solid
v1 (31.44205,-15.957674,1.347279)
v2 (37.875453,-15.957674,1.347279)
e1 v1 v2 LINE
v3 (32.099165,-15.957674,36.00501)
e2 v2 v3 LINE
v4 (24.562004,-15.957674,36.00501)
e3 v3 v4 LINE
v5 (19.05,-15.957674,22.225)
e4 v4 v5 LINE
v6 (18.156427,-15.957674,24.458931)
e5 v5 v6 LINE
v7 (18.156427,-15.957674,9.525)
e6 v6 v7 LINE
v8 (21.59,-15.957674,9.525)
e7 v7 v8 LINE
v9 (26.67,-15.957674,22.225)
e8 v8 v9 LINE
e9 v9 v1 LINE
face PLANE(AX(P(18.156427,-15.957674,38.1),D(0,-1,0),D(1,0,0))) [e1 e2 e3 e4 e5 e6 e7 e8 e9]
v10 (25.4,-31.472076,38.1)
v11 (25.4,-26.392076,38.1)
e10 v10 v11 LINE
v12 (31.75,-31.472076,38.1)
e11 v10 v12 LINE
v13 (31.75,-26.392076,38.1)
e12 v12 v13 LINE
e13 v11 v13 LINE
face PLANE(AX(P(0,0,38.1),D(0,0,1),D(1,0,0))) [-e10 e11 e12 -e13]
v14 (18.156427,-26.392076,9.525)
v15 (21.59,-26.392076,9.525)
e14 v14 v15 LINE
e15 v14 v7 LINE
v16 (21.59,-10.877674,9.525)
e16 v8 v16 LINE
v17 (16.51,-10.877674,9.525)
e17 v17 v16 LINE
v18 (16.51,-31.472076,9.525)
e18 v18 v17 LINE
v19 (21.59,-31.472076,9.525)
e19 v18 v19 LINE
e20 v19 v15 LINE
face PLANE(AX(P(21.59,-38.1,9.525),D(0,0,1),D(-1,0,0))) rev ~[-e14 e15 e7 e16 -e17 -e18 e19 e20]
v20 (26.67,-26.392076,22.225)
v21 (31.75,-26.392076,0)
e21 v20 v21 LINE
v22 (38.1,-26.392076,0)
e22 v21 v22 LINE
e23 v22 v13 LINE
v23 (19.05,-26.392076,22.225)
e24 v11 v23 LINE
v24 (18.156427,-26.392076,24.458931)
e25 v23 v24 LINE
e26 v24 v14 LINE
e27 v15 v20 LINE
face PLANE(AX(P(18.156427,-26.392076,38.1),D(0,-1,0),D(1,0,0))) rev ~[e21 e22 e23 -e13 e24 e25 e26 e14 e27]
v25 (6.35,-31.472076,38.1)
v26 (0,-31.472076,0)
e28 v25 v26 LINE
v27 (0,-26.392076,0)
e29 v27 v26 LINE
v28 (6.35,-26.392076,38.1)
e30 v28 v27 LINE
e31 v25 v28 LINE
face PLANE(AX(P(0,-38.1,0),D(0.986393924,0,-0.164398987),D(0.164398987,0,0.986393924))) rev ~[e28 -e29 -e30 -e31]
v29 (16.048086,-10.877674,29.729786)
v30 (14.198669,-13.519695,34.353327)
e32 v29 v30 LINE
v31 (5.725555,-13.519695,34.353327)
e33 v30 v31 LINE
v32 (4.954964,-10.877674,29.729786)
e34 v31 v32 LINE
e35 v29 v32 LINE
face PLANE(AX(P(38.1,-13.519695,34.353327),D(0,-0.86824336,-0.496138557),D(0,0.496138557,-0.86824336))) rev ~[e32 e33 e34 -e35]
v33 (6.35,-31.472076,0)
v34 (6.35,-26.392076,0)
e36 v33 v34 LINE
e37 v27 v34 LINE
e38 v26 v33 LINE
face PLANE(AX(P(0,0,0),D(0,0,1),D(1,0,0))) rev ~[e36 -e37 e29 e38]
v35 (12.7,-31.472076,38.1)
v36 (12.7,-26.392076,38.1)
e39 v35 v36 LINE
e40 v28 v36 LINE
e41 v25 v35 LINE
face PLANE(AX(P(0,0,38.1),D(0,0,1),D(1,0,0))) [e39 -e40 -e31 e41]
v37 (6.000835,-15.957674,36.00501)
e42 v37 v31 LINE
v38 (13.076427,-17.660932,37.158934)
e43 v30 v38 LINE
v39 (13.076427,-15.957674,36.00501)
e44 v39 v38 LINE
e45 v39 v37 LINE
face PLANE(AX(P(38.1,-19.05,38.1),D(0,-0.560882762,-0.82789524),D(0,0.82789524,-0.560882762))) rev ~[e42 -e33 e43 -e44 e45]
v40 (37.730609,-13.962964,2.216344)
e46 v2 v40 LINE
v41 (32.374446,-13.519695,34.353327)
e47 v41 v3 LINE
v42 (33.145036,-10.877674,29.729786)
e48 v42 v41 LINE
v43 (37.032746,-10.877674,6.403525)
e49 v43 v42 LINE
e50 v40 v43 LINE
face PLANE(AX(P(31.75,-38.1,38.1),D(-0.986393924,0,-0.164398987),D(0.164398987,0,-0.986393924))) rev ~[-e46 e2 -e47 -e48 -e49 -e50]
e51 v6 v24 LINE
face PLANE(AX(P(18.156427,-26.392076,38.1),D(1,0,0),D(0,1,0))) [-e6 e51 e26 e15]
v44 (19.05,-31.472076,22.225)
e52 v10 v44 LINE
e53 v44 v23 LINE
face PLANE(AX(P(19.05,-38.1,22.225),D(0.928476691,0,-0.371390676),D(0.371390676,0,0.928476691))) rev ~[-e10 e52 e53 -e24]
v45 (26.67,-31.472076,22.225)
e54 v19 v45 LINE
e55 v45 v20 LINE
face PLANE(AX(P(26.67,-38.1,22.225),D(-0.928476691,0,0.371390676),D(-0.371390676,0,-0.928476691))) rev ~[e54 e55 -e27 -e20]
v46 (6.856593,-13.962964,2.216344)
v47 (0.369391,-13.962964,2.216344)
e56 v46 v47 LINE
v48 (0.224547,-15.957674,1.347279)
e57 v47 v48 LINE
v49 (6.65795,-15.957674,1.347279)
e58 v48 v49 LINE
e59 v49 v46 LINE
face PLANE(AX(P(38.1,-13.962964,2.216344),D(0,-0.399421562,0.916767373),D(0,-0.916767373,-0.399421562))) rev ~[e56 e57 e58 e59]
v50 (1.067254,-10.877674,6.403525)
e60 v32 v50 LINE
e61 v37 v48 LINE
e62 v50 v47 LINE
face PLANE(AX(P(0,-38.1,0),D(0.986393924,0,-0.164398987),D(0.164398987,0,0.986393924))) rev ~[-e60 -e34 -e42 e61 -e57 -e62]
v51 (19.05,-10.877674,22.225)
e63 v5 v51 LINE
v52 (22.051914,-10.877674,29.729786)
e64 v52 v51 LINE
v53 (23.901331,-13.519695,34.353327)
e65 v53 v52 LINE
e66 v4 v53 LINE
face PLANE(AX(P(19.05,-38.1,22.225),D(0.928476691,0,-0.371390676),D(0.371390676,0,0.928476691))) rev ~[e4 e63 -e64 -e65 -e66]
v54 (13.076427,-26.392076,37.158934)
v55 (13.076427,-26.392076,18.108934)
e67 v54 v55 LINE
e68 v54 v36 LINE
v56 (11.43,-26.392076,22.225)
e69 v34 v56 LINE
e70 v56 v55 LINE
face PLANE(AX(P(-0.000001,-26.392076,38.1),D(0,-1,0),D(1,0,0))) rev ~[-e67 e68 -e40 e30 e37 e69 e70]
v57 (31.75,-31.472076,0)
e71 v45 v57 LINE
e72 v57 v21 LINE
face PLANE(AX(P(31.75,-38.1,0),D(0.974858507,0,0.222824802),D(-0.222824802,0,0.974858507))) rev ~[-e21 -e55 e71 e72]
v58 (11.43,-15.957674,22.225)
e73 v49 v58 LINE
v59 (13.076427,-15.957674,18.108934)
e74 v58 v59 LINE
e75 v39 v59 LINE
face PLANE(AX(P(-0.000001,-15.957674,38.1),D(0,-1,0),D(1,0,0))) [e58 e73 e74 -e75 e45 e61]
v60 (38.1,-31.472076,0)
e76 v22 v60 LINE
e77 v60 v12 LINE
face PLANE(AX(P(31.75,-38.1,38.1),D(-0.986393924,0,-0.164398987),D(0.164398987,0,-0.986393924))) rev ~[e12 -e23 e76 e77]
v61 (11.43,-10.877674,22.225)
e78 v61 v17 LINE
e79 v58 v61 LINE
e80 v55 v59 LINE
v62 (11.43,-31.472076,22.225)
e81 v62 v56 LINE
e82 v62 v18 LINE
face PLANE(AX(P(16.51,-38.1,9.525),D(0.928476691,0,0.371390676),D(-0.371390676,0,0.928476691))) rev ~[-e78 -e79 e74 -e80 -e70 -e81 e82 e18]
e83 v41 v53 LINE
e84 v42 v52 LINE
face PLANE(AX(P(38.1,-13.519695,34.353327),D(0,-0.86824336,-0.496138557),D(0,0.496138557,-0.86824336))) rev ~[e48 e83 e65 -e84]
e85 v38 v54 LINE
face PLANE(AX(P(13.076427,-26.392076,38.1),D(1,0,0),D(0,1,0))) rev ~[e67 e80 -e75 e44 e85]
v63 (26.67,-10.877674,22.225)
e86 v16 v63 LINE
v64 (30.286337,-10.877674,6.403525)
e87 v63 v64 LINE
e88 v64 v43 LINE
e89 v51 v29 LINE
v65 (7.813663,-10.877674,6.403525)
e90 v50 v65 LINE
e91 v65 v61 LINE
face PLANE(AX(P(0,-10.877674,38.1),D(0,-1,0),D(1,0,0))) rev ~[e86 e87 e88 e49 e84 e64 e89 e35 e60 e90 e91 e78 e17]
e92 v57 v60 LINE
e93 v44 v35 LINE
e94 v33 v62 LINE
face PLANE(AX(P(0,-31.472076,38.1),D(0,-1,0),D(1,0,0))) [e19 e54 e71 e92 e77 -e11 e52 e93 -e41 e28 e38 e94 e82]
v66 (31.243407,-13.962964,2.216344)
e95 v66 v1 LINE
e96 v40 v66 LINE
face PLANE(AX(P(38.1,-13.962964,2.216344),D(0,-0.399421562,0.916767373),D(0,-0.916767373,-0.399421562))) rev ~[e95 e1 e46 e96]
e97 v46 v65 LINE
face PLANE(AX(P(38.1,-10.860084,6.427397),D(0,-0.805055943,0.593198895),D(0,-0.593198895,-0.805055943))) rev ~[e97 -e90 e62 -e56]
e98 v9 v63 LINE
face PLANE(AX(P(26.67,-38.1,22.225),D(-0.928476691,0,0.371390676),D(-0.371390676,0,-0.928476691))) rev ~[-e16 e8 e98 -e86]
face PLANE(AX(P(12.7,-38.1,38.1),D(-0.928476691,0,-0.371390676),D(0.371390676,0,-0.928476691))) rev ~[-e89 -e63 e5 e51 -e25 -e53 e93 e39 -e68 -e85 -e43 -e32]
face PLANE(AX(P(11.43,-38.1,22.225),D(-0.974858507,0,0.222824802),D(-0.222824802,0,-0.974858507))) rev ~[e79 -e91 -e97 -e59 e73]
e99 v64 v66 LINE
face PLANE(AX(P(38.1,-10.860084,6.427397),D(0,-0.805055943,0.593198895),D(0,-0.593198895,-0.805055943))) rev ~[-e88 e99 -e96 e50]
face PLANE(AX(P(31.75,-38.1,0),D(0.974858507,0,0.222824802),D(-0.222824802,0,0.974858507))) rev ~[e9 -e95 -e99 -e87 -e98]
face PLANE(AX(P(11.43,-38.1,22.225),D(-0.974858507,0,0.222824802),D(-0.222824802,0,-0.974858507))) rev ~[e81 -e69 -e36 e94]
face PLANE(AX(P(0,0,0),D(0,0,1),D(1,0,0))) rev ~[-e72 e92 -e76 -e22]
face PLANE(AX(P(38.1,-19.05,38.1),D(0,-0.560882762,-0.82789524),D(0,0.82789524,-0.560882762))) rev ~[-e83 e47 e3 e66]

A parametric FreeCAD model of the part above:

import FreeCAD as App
import Part
import Sketcher
from FreeCAD import Vector
Q = App.Units.Quantity

doc = App.newDocument("Part")
body = doc.addObject("PartDesign::Body", "Body")

# Sketch on XZ plane
sketch1 = doc.addObject("Sketcher::SketchObject", "Sketch")
body.addObject(sketch1)
sketch1.AttachmentSupport = (doc.XZ_Plane, [""])
sketch1.MapMode = "FlatFace"
sketch1.addGeometry(Part.LineSegment(Vector(0, 38.1, 0), Vector(0, 0, 0)), False)
sketch1.addGeometry(Part.LineSegment(Vector(0, 0, 0), Vector(38.1, 0, 0)), False)
sketch1.addGeometry(Part.LineSegment(Vector(38.1, 0, 0), Vector(38.1, 38.1, 0)), False)
sketch1.addGeometry(Part.LineSegment(Vector(38.1, 38.1, 0), Vector(0, 38.1, 0)), False)
sketch1.addConstraint(Sketcher.Constraint("Coincident", 0, 2, 1, 1))
sketch1.addConstraint(Sketcher.Constraint("Coincident", 1, 2, 2, 1))
sketch1.addConstraint(Sketcher.Constraint("Coincident", 2, 2, 3, 1))
sketch1.addConstraint(Sketcher.Constraint("Coincident", 3, 2, 0, 1))
sketch1.addConstraint(Sketcher.Constraint("Vertical", 0))
sketch1.addConstraint(Sketcher.Constraint("Horizontal", 1))
sketch1.addConstraint(Sketcher.Constraint("Vertical", 2))
sketch1.addConstraint(Sketcher.Constraint("Horizontal", 3))
sketch1.addConstraint(Sketcher.Constraint("Coincident", 0, 2, -1, 1))
sketch1.addConstraint(Sketcher.Constraint("Equal", 3, 0))
sketch1.addConstraint(Sketcher.Constraint("DistanceX", 1, 1, 1, 2, Q("1.5 in")))
pad1 = doc.addObject("PartDesign::Pad", "Pad")
body.addObject(pad1)
pad1.Profile = sketch1
pad1.Length = Q("1.5 in")

# Sketch on XZ plane
sketch2 = doc.addObject("Sketcher::SketchObject", "Sketch001")
body.addObject(sketch2)
sketch2.AttachmentSupport = (doc.XZ_Plane, [""])
sketch2.MapMode = "FlatFace"
sketch2.AttachmentOffset = App.Placement(Vector(0, 0, 1.5 * 25.4), App.Rotation())
sketch2.addGeometry(Part.LineSegment(Vector(0, 38.1, 0), Vector(0, 0, 0)), False)
sketch2.addGeometry(Part.LineSegment(Vector(0, 0, 0), Vector(6.35, 38.1, 0)), False)
sketch2.addGeometry(Part.LineSegment(Vector(6.35, 38.1, 0), Vector(0, 38.1, 0)), False)
sketch2.addGeometry(Part.LineSegment(Vector(25.4, 38.1, 0), Vector(12.7, 38.1, 0)), False)
sketch2.addGeometry(Part.LineSegment(Vector(12.7, 38.1, 0), Vector(19.05, 22.225, 0)), False)
sketch2.addGeometry(Part.LineSegment(Vector(19.05, 22.225, 0), Vector(25.4, 38.1, 0)), False)
sketch2.addGeometry(Part.LineSegment(Vector(31.75, 38.1, 0), Vector(38.1, 0, 0)), False)
sketch2.addGeometry(Part.LineSegment(Vector(38.1, 0, 0), Vector(38.1, 38.1, 0)), False)
sketch2.addGeometry(Part.LineSegment(Vector(38.1, 38.1, 0), Vector(31.75, 38.1, 0)), False)
sketch2.addGeometry(Part.LineSegment(Vector(11.43, 22.225, 0), Vector(6.35, 0, 0)), False)
sketch2.addGeometry(Part.LineSegment(Vector(6.35, 0, 0), Vector(31.75, 0, 0)), False)
sketch2.addGeometry(Part.LineSegment(Vector(31.75, 0, 0), Vector(26.67, 22.225, 0)), False)
sketch2.addGeometry(Part.LineSegment(Vector(26.67, 22.225, 0), Vector(21.59, 9.525, 0)), False)
sketch2.addGeometry(Part.LineSegment(Vector(21.59, 9.525, 0), Vector(16.51, 9.525, 0)), False)
sketch2.addGeometry(Part.LineSegment(Vector(16.51, 9.525, 0), Vector(11.43, 22.225, 0)), False)
sketch2.addConstraint(Sketcher.Constraint("Coincident", 0, 2, 1, 1))
sketch2.addConstraint(Sketcher.Constraint("Coincident", 1, 2, 2, 1))
sketch2.addConstraint(Sketcher.Constraint("Coincident", 2, 2, 0, 1))
sketch2.addConstraint(Sketcher.Constraint("Coincident", 3, 2, 4, 1))
sketch2.addConstraint(Sketcher.Constraint("Coincident", 4, 2, 5, 1))
sketch2.addConstraint(Sketcher.Constraint("Coincident", 5, 2, 3, 1))
sketch2.addConstraint(Sketcher.Constraint("Coincident", 6, 2, 7, 1))
sketch2.addConstraint(Sketcher.Constraint("Coincident", 7, 2, 8, 1))
sketch2.addConstraint(Sketcher.Constraint("Coincident", 8, 2, 6, 1))
sketch2.addConstraint(Sketcher.Constraint("Coincident", 9, 2, 10, 1))
sketch2.addConstraint(Sketcher.Constraint("Coincident", 10, 2, 11, 1))
sketch2.addConstraint(Sketcher.Constraint("Coincident", 11, 2, 12, 1))
sketch2.addConstraint(Sketcher.Constraint("Coincident", 12, 2, 13, 1))
sketch2.addConstraint(Sketcher.Constraint("Coincident", 13, 2, 14, 1))
sketch2.addConstraint(Sketcher.Constraint("Coincident", 14, 2, 9, 1))
sketch2.addConstraint(Sketcher.Constraint("Vertical", 0))
sketch2.addConstraint(Sketcher.Constraint("Horizontal", 2))
sketch2.addConstraint(Sketcher.Constraint("Horizontal", 3))
sketch2.addConstraint(Sketcher.Constraint("Vertical", 7))
sketch2.addConstraint(Sketcher.Constraint("Horizontal", 8))
sketch2.addConstraint(Sketcher.Constraint("Horizontal", 10))
sketch2.addConstraint(Sketcher.Constraint("Horizontal", 13))
sketch2.addConstraint(Sketcher.Constraint("Coincident", 0, 2, -1, 1))
sketch2.addConstraint(Sketcher.Constraint("PointOnObject", 6, 2, -1))
sketch2.addConstraint(Sketcher.Constraint("PointOnObject", 9, 2, -1))
sketch2.addConstraint(Sketcher.Constraint("Parallel", 5, 12))
sketch2.addConstraint(Sketcher.Constraint("Parallel", 4, 14))
sketch2.addConstraint(Sketcher.Constraint("Horizontal", 2, 2, 3, 2))
sketch2.addConstraint(Sketcher.Constraint("Horizontal", 5, 2, 7, 2))
sketch2.addConstraint(Sketcher.Constraint("Horizontal", 4, 2, 11, 2))
sketch2.addConstraint(Sketcher.Constraint("Horizontal", 11, 2, 14, 2))
sketch2.addConstraint(Sketcher.Constraint("Vertical", 1, 2, 9, 2))
sketch2.addConstraint(Sketcher.Constraint("Vertical", 8, 2, 10, 2))
sketch2.addConstraint(Sketcher.Constraint("Equal", 2, 8))
sketch2.addConstraint(Sketcher.Constraint("Equal", 4, 5))
sketch2.addConstraint(Sketcher.Constraint("Equal", 9, 11))
sketch2.addConstraint(Sketcher.Constraint("DistanceX", 10, 1, 10, 2, Q("1 in")))
sketch2.addConstraint(Sketcher.Constraint("DistanceX", 3, 2, 3, 1, Q("0.5 in")))
sketch2.addConstraint(Sketcher.Constraint("DistanceX", 13, 2, 13, 1, Q("0.2 in")))
sketch2.addConstraint(Sketcher.Constraint("DistanceY", 0, 2, 0, 1, Q("1.5 in")))
sketch2.addConstraint(Sketcher.Constraint("DistanceX", -1, 1, 5, 2, Q("1 in")))
sketch2.addConstraint(Sketcher.Constraint("DistanceX", 3, 2, 6, 2, Q("1 in")))
sketch2.addConstraint(Sketcher.Constraint("DistanceX", 4, 2, 11, 2, Q("0.3 in")))
sketch2.addConstraint(Sketcher.Constraint("DistanceY", 12, 2, 4, 2, Q("0.5 in")))
pocket1 = doc.addObject("PartDesign::Pocket", "Pocket")
body.addObject(pocket1)
pocket1.Profile = sketch2
pocket1.Length = Q("1.5 in")

# Sketch on YZ plane
sketch3 = doc.addObject("Sketcher::SketchObject", "Sketch002")
body.addObject(sketch3)
sketch3.AttachmentSupport = (doc.YZ_Plane, [""])
sketch3.MapMode = "FlatFace"
sketch3.AttachmentOffset = App.Placement(Vector(0, 0, 1.5 * 25.4), App.Rotation())
sketch3.addGeometry(Part.LineSegment(Vector(-38.1, 38.1, 0), Vector(-38.1, 0, 0)), False)
sketch3.addGeometry(Part.LineSegment(Vector(-38.1, 0, 0), Vector(-33.245154, 0, 0)), False)
sketch3.addGeometry(Part.LineSegment(Vector(-33.245154, 0, 0), Vector(-33.245154, 38.1, 0)), False)
sketch3.addGeometry(Part.LineSegment(Vector(-33.245154, 38.1, 0), Vector(-38.1, 38.1, 0)), False)
sketch3.addGeometry(Part.LineSegment(Vector(-19.05, 0, 0), Vector(0, 0, 0)), False)
sketch3.addGeometry(Part.LineSegment(Vector(0, 0, 0), Vector(0, 38.1, 0)), False)
sketch3.addGeometry(Part.LineSegment(Vector(0, 38.1, 0), Vector(-19.05, 38.1, 0)), False)
sketch3.addGeometry(Part.LineSegment(Vector(-19.05, 38.1, 0), Vector(-13.519695, 34.353327, 0)), False)
sketch3.addGeometry(Part.LineSegment(Vector(-13.519695, 34.353327, 0), Vector(-10.860084, 29.699003, 0)), False)
sketch3.addGeometry(Part.LineSegment(Vector(-10.860084, 29.699003, 0), Vector(-10.860084, 6.427397, 0)), False)
sketch3.addGeometry(Part.LineSegment(Vector(-10.860084, 6.427397, 0), Vector(-13.962964, 2.216344, 0)), False)
sketch3.addGeometry(Part.LineSegment(Vector(-13.962964, 2.216344, 0), Vector(-19.05, 0, 0)), False)
sketch3.addConstraint(Sketcher.Constraint("Coincident", 0, 2, 1, 1))
sketch3.addConstraint(Sketcher.Constraint("Coincident", 1, 2, 2, 1))
sketch3.addConstraint(Sketcher.Constraint("Coincident", 2, 2, 3, 1))
sketch3.addConstraint(Sketcher.Constraint("Coincident", 3, 2, 0, 1))
sketch3.addConstraint(Sketcher.Constraint("Coincident", 4, 2, 5, 1))
sketch3.addConstraint(Sketcher.Constraint("Coincident", 5, 2, 6, 1))
sketch3.addConstraint(Sketcher.Constraint("Coincident", 6, 2, 7, 1))
sketch3.addConstraint(Sketcher.Constraint("Coincident", 7, 2, 8, 1))
sketch3.addConstraint(Sketcher.Constraint("Coincident", 8, 2, 9, 1))
sketch3.addConstraint(Sketcher.Constraint("Coincident", 9, 2, 10, 1))
sketch3.addConstraint(Sketcher.Constraint("Coincident", 10, 2, 11, 1))
sketch3.addConstraint(Sketcher.Constraint("Coincident", 11, 2, 4, 1))
sketch3.addConstraint(Sketcher.Constraint("Vertical", 0))
sketch3.addConstraint(Sketcher.Constraint("Horizontal", 1))
sketch3.addConstraint(Sketcher.Constraint("Vertical", 2))
sketch3.addConstraint(Sketcher.Constraint("Horizontal", 3))
sketch3.addConstraint(Sketcher.Constraint("Horizontal", 4))
sketch3.addConstraint(Sketcher.Constraint("Vertical", 5))
sketch3.addConstraint(Sketcher.Constraint("Horizontal", 6))
sketch3.addConstraint(Sketcher.Constraint("Vertical", 9))
sketch3.addConstraint(Sketcher.Constraint("Coincident", 4, 2, -1, 1))
sketch3.addConstraint(Sketcher.Constraint("PointOnObject", 0, 2, -1))
sketch3.addConstraint(Sketcher.Constraint("Horizontal", 3, 2, 5, 2))
sketch3.addConstraint(Sketcher.Constraint("Vertical", 6, 2, 11, 2))
sketch3.addConstraint(Sketcher.Constraint("DistanceY", 0, 2, 0, 1, Q("1.5 in")))
sketch3.addConstraint(Sketcher.Constraint("DistanceX", 4, 1, 4, 2, Q("0.75 in")))
sketch3.addConstraint(Sketcher.Constraint("DistanceX", 0, 2, -1, 1, Q("1.5 in")))
sketch3.addConstraint(Sketcher.Constraint("Distance", 8, Q("5.360621 mm")))
sketch3.addConstraint(Sketcher.Constraint("Distance", 10, Q("5.230758 mm")))
sketch3.addConstraint(Sketcher.Constraint("DistanceX", 1, 1, 1, 2, Q("4.854846 mm")))
sketch3.addConstraint(Sketcher.Constraint("DistanceY", 9, 2, 9, 1, Q("23.271606 mm")))
sketch3.addConstraint(Sketcher.Constraint("DistanceX", 2, 2, 7, 2, Q("19.725459 mm")))
sketch3.addConstraint(Sketcher.Constraint("DistanceX", 7, 2, 8, 2, Q("2.659611 mm")))
sketch3.addConstraint(Sketcher.Constraint("DistanceX", 10, 2, 9, 2, Q("3.10288 mm")))
sketch3.addConstraint(Sketcher.Constraint("Distance", 7, Q("6.679957 mm")))
pocket2 = doc.addObject("PartDesign::Pocket", "Pocket001")
body.addObject(pocket2)
pocket2.Profile = sketch3
pocket2.Length = Q("1.5 in")

# Sketch on XY plane
sketch4 = doc.addObject("Sketcher::SketchObject", "Sketch003")
body.addObject(sketch4)
sketch4.AttachmentSupport = (doc.XY_Plane, [""])
sketch4.MapMode = "FlatFace"
sketch4.AttachmentOffset = App.Placement(Vector(0, 0, 1.5 * 25.4), App.Rotation())
sketch4.addGeometry(Part.LineSegment(Vector(18.156427, -15.957674, 0), Vector(18.156427, -26.392076, 0)), False)
sketch4.addGeometry(Part.LineSegment(Vector(18.156427, -26.392076, 0), Vector(38.100001, -26.392076, 0)), False)
sketch4.addGeometry(Part.LineSegment(Vector(38.100001, -26.392076, 0), Vector(38.100001, -15.957674, 0)), False)
sketch4.addGeometry(Part.LineSegment(Vector(38.100001, -15.957674, 0), Vector(18.156427, -15.957674, 0)), False)
sketch4.addGeometry(Part.LineSegment(Vector(0, -15.957674, 0), Vector(0, -26.392076, 0)), False)
sketch4.addGeometry(Part.LineSegment(Vector(0, -26.392076, 0), Vector(13.076427, -26.392076, 0)), False)
sketch4.addGeometry(Part.LineSegment(Vector(13.076427, -26.392076, 0), Vector(13.076427, -15.957674, 0)), False)
sketch4.addGeometry(Part.LineSegment(Vector(13.076427, -15.957674, 0), Vector(0, -15.957674, 0)), False)
sketch4.addGeometry(Part.LineSegment(Vector(0, -31.472076, 0), Vector(0, -38.1, 0)), False)
sketch4.addGeometry(Part.LineSegment(Vector(0, -38.1, 0), Vector(38.1, -38.1, 0)), False)
sketch4.addGeometry(Part.LineSegment(Vector(38.1, -38.1, 0), Vector(38.1, -31.472076, 0)), False)
sketch4.addGeometry(Part.LineSegment(Vector(38.1, -31.472076, 0), Vector(0, -31.472076, 0)), False)
sketch4.addGeometry(Part.LineSegment(Vector(0, 0, 0), Vector(0, -10.877674, 0)), False)
sketch4.addGeometry(Part.LineSegment(Vector(0, -10.877674, 0), Vector(38.1, -10.877674, 0)), False)
sketch4.addGeometry(Part.LineSegment(Vector(38.1, -10.877674, 0), Vector(38.1, 0, 0)), False)
sketch4.addGeometry(Part.LineSegment(Vector(38.1, 0, 0), Vector(0, 0, 0)), False)
sketch4.addConstraint(Sketcher.Constraint("Coincident", 0, 2, 1, 1))
sketch4.addConstraint(Sketcher.Constraint("Coincident", 1, 2, 2, 1))
sketch4.addConstraint(Sketcher.Constraint("Coincident", 2, 2, 3, 1))
sketch4.addConstraint(Sketcher.Constraint("Coincident", 3, 2, 0, 1))
sketch4.addConstraint(Sketcher.Constraint("Coincident", 4, 2, 5, 1))
sketch4.addConstraint(Sketcher.Constraint("Coincident", 5, 2, 6, 1))
sketch4.addConstraint(Sketcher.Constraint("Coincident", 6, 2, 7, 1))
sketch4.addConstraint(Sketcher.Constraint("Coincident", 7, 2, 4, 1))
sketch4.addConstraint(Sketcher.Constraint("Coincident", 8, 2, 9, 1))
sketch4.addConstraint(Sketcher.Constraint("Coincident", 9, 2, 10, 1))
sketch4.addConstraint(Sketcher.Constraint("Coincident", 10, 2, 11, 1))
sketch4.addConstraint(Sketcher.Constraint("Coincident", 11, 2, 8, 1))
sketch4.addConstraint(Sketcher.Constraint("Coincident", 12, 2, 13, 1))
sketch4.addConstraint(Sketcher.Constraint("Coincident", 13, 2, 14, 1))
sketch4.addConstraint(Sketcher.Constraint("Coincident", 14, 2, 15, 1))
sketch4.addConstraint(Sketcher.Constraint("Coincident", 15, 2, 12, 1))
sketch4.addConstraint(Sketcher.Constraint("Vertical", 0))
sketch4.addConstraint(Sketcher.Constraint("Horizontal", 1))
sketch4.addConstraint(Sketcher.Constraint("Vertical", 2))
sketch4.addConstraint(Sketcher.Constraint("Horizontal", 3))
sketch4.addConstraint(Sketcher.Constraint("Vertical", 4))
sketch4.addConstraint(Sketcher.Constraint("Horizontal", 5))
sketch4.addConstraint(Sketcher.Constraint("Vertical", 6))
sketch4.addConstraint(Sketcher.Constraint("Horizontal", 7))
sketch4.addConstraint(Sketcher.Constraint("Vertical", 8))
sketch4.addConstraint(Sketcher.Constraint("Horizontal", 9))
sketch4.addConstraint(Sketcher.Constraint("Vertical", 10))
sketch4.addConstraint(Sketcher.Constraint("Horizontal", 11))
sketch4.addConstraint(Sketcher.Constraint("Vertical", 12))
sketch4.addConstraint(Sketcher.Constraint("Horizontal", 13))
sketch4.addConstraint(Sketcher.Constraint("Vertical", 14))
sketch4.addConstraint(Sketcher.Constraint("Horizontal", 15))
sketch4.addConstraint(Sketcher.Constraint("Coincident", 15, 2, -1, 1))
sketch4.addConstraint(Sketcher.Constraint("PointOnObject", 4, 2, -2))
sketch4.addConstraint(Sketcher.Constraint("PointOnObject", 8, 2, -2))
sketch4.addConstraint(Sketcher.Constraint("Horizontal", 1, 2, 4, 2))
sketch4.addConstraint(Sketcher.Constraint("Horizontal", 3, 2, 6, 2))
sketch4.addConstraint(Sketcher.Constraint("Vertical", 2, 2, 9, 2))
sketch4.addConstraint(Sketcher.Constraint("Vertical", 10, 2, 13, 2))
sketch4.addConstraint(Sketcher.Constraint("DistanceX", 9, 1, 9, 2, Q("1.5 in")))
sketch4.addConstraint(Sketcher.Constraint("DistanceY", 8, 2, -1, 1, Q("1.5 in")))
sketch4.addConstraint(Sketcher.Constraint("DistanceX", 5, 2, 0, 2, Q("0.2 in")))
sketch4.addConstraint(Sketcher.Constraint("DistanceY", 10, 2, 1, 2, Q("0.2 in")))
sketch4.addConstraint(Sketcher.Constraint("DistanceY", 7, 2, 12, 2, Q("0.2 in")))
sketch4.addConstraint(Sketcher.Constraint("DistanceY", 0, 2, 0, 1, Q("10.434402 mm")))
sketch4.addConstraint(Sketcher.Constraint("DistanceX", 1, 1, 1, 2, Q("19.943573 mm")))
sketch4.addConstraint(Sketcher.Constraint("DistanceY", 8, 2, 8, 1, Q("6.627924 mm")))
pocket3 = doc.addObject("PartDesign::Pocket", "Pocket002")
body.addObject(pocket3)
pocket3.Profile = sketch4
pocket3.Length = Q("1.5 in")

doc.recompute()
